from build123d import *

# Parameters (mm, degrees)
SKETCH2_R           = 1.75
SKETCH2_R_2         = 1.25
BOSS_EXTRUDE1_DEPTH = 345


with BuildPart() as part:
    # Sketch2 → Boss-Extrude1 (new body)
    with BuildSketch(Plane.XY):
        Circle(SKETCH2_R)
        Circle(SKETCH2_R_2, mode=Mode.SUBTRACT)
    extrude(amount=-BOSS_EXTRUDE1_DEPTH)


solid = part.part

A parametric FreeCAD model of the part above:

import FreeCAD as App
import Part
import Sketcher

V = App.Vector
Q = App.Units.Quantity

doc = App.newDocument("Part")
body = doc.addObject("PartDesign::Body", "Body")

sketch1 = body.newObject("Sketcher::SketchObject", "Sketch")
sketch1.AttachmentSupport = (doc.getObject("XY_Plane"), [""])
sketch1.MapMode = "FlatFace"
sketch1.addGeometry(Part.Circle(V(0, 0, 0), V(0, 0, 1), 1.75), False)
sketch1.addGeometry(Part.Circle(V(0, 0, 0), V(0, 0, 1), 1.25), False)
sketch1.addConstraint(Sketcher.Constraint("Coincident", 0, 3, -1, 1))
sketch1.addConstraint(Sketcher.Constraint("Coincident", 1, 3, -1, 1))
sketch1.addConstraint(Sketcher.Constraint("Diameter", 0, Q("3.5 mm")))
sketch1.addConstraint(Sketcher.Constraint("Diameter", 1, Q("2.5 mm")))
pad1 = body.newObject("PartDesign::Pad", "Pad")
pad1.Profile = sketch1
pad1.Length = 345
pad1.Reversed = True

doc.recompute()
